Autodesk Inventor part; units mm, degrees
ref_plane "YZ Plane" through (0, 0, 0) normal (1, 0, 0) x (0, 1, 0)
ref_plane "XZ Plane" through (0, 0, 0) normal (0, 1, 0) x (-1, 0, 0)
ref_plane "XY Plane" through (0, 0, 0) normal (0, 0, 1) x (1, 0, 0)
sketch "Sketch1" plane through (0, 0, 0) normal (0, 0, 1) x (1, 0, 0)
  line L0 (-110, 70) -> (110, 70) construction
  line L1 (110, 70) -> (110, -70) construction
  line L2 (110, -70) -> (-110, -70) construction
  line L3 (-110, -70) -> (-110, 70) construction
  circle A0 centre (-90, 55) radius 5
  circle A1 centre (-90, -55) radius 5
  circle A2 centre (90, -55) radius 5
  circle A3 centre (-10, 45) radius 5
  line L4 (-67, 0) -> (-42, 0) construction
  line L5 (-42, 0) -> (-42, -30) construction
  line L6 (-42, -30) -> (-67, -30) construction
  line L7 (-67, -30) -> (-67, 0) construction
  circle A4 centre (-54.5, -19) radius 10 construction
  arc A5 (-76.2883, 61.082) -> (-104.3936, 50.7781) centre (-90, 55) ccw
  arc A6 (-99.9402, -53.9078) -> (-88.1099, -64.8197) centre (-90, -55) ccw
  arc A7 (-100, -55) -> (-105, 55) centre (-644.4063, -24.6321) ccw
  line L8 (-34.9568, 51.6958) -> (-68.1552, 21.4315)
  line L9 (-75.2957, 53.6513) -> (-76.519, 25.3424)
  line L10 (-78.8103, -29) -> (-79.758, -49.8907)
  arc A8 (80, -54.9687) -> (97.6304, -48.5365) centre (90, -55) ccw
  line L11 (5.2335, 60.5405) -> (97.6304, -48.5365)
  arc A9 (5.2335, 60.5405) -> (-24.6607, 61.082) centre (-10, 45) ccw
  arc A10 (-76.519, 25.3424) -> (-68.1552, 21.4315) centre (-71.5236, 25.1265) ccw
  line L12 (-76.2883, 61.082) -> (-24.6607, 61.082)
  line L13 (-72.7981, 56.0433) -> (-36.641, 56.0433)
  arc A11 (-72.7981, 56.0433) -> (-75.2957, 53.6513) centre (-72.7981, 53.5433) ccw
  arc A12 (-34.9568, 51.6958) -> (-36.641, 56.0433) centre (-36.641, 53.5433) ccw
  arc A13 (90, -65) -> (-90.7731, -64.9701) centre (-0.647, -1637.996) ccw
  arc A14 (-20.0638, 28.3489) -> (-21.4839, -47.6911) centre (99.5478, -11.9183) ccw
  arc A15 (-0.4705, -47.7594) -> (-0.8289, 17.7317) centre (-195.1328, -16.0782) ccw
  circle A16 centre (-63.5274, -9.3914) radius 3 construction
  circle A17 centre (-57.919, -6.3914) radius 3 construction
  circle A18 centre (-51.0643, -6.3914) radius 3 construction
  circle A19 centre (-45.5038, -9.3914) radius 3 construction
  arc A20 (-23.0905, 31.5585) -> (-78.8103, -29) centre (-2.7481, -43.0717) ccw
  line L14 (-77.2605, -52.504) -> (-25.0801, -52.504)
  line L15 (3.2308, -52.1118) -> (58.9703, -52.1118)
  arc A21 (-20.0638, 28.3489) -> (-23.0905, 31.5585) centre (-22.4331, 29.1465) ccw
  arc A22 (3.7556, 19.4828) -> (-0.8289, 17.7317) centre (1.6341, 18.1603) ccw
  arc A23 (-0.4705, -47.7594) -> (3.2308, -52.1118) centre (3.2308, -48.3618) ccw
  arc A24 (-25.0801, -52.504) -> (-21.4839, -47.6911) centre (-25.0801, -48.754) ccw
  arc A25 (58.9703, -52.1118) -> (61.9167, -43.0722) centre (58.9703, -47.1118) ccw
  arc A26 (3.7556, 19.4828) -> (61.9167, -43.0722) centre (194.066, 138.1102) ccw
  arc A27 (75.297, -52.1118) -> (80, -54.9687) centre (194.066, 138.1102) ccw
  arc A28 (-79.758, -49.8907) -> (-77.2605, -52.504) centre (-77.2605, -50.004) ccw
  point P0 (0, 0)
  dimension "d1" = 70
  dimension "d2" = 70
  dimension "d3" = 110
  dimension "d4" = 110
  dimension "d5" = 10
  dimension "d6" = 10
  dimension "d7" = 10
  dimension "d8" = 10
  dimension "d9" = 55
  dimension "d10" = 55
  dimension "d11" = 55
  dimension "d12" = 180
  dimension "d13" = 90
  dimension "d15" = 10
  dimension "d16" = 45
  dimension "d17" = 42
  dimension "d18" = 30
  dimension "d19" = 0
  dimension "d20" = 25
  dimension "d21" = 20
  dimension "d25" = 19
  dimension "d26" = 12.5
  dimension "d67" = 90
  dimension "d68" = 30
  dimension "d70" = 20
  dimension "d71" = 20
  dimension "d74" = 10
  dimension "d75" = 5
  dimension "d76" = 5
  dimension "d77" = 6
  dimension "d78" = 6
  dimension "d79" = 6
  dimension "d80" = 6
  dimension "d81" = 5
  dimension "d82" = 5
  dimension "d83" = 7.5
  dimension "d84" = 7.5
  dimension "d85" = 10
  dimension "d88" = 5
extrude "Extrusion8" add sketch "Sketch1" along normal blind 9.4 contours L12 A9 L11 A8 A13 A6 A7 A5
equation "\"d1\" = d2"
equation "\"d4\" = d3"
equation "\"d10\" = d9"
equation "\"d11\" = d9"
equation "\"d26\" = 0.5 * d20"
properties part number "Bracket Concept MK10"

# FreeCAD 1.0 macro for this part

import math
import FreeCAD as App
import Part
import Sketcher
Q = App.Units.Quantity

doc = App.newDocument("Part")
params = doc.addObject("Spreadsheet::Sheet", "Params")
for row, (alias, value) in enumerate([
    ("sketch1_diameter", "10 mm"),
    ("sketch1_radius", "15 mm"),
    ("sketch1_radius2", "10 mm"),
    ("sketch1_radius3", "2.5 mm"),
    ("sketch1_radius4", "3.75 mm"),
    ("pad1_length", "9.4 mm"),
], start=1):
    params.set(f"A{row}", alias)
    params.set(f"B{row}", "=" + value)
    params.setAlias(f"B{row}", alias)

body = doc.addObject("PartDesign::Body", "Body")

# Sketch on XY plane
sketch1 = doc.addObject("Sketcher::SketchObject", "Sketch")
body.addObject(sketch1)
sketch1.AttachmentSupport = (doc.XY_Plane, [""])
sketch1.MapMode = "FlatFace"
sketch1.addGeometry([
    Part.LineSegment(App.Vector(-24.7, 61.1, 0), App.Vector(-76.3, 61.1, 0)),  # 0
    Part.ArcOfCircle(Part.Circle(App.Vector(-90, 55, 0), App.Vector(0, 0, 1), 15), math.radians(24), math.radians(180)),  # 1
    Part.ArcOfCircle(Part.Circle(App.Vector(-644.4, -24.6, 0), App.Vector(0, 0, 1), 545.3), math.radians(-3.19), math.radians(8.4)),  # 2
    Part.ArcOfCircle(Part.Circle(App.Vector(-90, -55, 0), App.Vector(0, 0, 1), 10), math.radians(180), math.radians(266)),  # 3
    Part.ArcOfCircle(Part.Circle(App.Vector(-0.6, -1638, 0), App.Vector(0, 0, 1), 1575.6), math.radians(86.7), math.radians(93.28)),  # 4
    Part.ArcOfCircle(Part.Circle(App.Vector(90, -55, 0), App.Vector(0, 0, 1), 10), math.radians(-90), math.radians(40)),  # 5
    Part.LineSegment(App.Vector(97.6, -48.5, 0), App.Vector(5.2, 60.5, 0)),  # 6
    Part.ArcOfCircle(Part.Circle(App.Vector(-10, 45, 0), App.Vector(0, 0, 1), 21.8), math.radians(46), math.radians(132)),  # 7
    Part.Circle(App.Vector(-90, -55, 0), App.Vector(0, 0, 1), 5),  # 8
    Part.LineSegment(App.Vector(-79.8, -49.9, 0), App.Vector(-78.8, -29, 0)),  # 9
    Part.ArcOfCircle(Part.Circle(App.Vector(-2.7, -43.1, 0), App.Vector(0, 0, 1), 77.4), math.radians(105), math.radians(170)),  # 10
    Part.ArcOfCircle(Part.Circle(App.Vector(-22.4, 29.1, 0), App.Vector(0, 0, 1), 2.5), math.radians(-19), math.radians(105)),  # 11
    Part.ArcOfCircle(Part.Circle(App.Vector(99.5, -11.9, 0), App.Vector(0, 0, 1), 126.2), math.radians(161), math.radians(196)),  # 12
    Part.ArcOfCircle(Part.Circle(App.Vector(-25.1, -48.8, 0), App.Vector(0, 0, 1), 3.8), math.radians(-90), math.radians(16)),  # 13
    Part.LineSegment(App.Vector(-25.1, -52.5, 0), App.Vector(-77.3, -52.5, 0)),  # 14
    Part.ArcOfCircle(Part.Circle(App.Vector(-77.3, -50, 0), App.Vector(0, 0, 1), 2.5), math.radians(177), math.radians(270)),  # 15
    Part.Circle(App.Vector(90, -55, 0), App.Vector(0, 0, 1), 5),  # 16
    Part.ArcOfCircle(Part.Circle(App.Vector(3.2, -48.4, 0), App.Vector(0, 0, 1), 3.8), math.radians(171), math.radians(270)),  # 17
    Part.ArcOfCircle(Part.Circle(App.Vector(-195.1, -16.1, 0), App.Vector(0, 0, 1), 197.2), math.radians(-9.24), math.radians(9.87)),  # 18
    Part.ArcOfCircle(Part.Circle(App.Vector(1.6, 18.2, 0), App.Vector(0, 0, 1), 2.5), math.radians(32), math.radians(190)),  # 19
    Part.ArcOfCircle(Part.Circle(App.Vector(194.1, 138.1, 0), App.Vector(0, 0, 1), 224.3), math.radians(-148), math.radians(-126)),  # 20
    Part.ArcOfCircle(Part.Circle(App.Vector(59, -47.1, 0), App.Vector(0, 0, 1), 5), math.radians(-90), math.radians(54)),  # 21
    Part.LineSegment(App.Vector(59, -52.1, 0), App.Vector(3.2, -52.1, 0)),  # 22
    Part.ArcOfCircle(Part.Circle(App.Vector(-36.6, 53.5, 0), App.Vector(0, 0, 1), 2.5), math.radians(-48), math.radians(90)),  # 23
    Part.LineSegment(App.Vector(-35, 51.7, 0), App.Vector(-68.2, 21.4, 0)),  # 24
    Part.ArcOfCircle(Part.Circle(App.Vector(-71.5, 25.1, 0), App.Vector(0, 0, 1), 5), math.radians(178), math.radians(312)),  # 25
    Part.LineSegment(App.Vector(-76.5, 25.3, 0), App.Vector(-75.3, 53.7, 0)),  # 26
    Part.ArcOfCircle(Part.Circle(App.Vector(-72.8, 53.5, 0), App.Vector(0, 0, 1), 2.5), math.radians(90), math.radians(178)),  # 27
    Part.LineSegment(App.Vector(-72.8, 56, 0), App.Vector(-36.6, 56, 0)),  # 28
    Part.Circle(App.Vector(-90, 55, 0), App.Vector(0, 0, 1), 5),  # 29
    Part.Circle(App.Vector(-10, 45, 0), App.Vector(0, 0, 1), 5),  # 30
], False)
sketch1.addConstraint([
    Sketcher.Constraint("Coincident", 0, 2, 1, 1),
    Sketcher.Constraint("Coincident", 1, 2, 2, 2),
    Sketcher.Constraint("Coincident", 2, 1, 3, 1),
    Sketcher.Constraint("Coincident", 3, 2, 4, 2),
    Sketcher.Constraint("Coincident", 4, 1, 5, 1),
    Sketcher.Constraint("Tangent", 5, 2, 6, 1),
    Sketcher.Constraint("Coincident", 6, 2, 7, 1),
    Sketcher.Constraint("Coincident", 7, 2, 0, 1),
    Sketcher.Constraint("Coincident", 9, 2, 10, 2),
    Sketcher.Constraint("Tangent", 10, 1, 11, 2),
    Sketcher.Constraint("Tangent", 11, 1, 12, 1),
    Sketcher.Constraint("Tangent", 12, 2, 13, 2),
    Sketcher.Constraint("Tangent", 13, 1, 14, 1),
    Sketcher.Constraint("Tangent", 14, 2, 15, 2),
    Sketcher.Constraint("Tangent", 15, 1, 9, 1),
    Sketcher.Constraint("Tangent", 17, 1, 18, 1),
    Sketcher.Constraint("Tangent", 18, 2, 19, 2),
    Sketcher.Constraint("Tangent", 19, 1, 20, 1),
    Sketcher.Constraint("Tangent", 20, 2, 21, 2),
    Sketcher.Constraint("Tangent", 21, 1, 22, 1),
    Sketcher.Constraint("Tangent", 22, 2, 17, 2),
    Sketcher.Constraint("Tangent", 23, 1, 24, 1),
    Sketcher.Constraint("Tangent", 24, 2, 25, 2),
    Sketcher.Constraint("Tangent", 25, 1, 26, 1),
    Sketcher.Constraint("Tangent", 26, 2, 27, 2),
    Sketcher.Constraint("Tangent", 27, 1, 28, 1),
    Sketcher.Constraint("Tangent", 28, 2, 23, 2),
    Sketcher.Constraint("Horizontal", 0),
    Sketcher.Constraint("Horizontal", 14),
    Sketcher.Constraint("Horizontal", 22),
    Sketcher.Constraint("Horizontal", 28),
    Sketcher.Constraint("Coincident", 8, 3, 3, 3),
    Sketcher.Constraint("Coincident", 16, 3, 5, 3),
    Sketcher.Constraint("Coincident", 29, 3, 1, 3),
    Sketcher.Constraint("Coincident", 30, 3, 7, 3),
    Sketcher.Constraint("Equal", 3, 5),
    Sketcher.Constraint("Equal", 11, 15),
    Sketcher.Constraint("Equal", 8, 16),
    Sketcher.Constraint("Equal", 13, 17),
    Sketcher.Constraint("Equal", 15, 19),
    Sketcher.Constraint("Equal", 16, 21),
    Sketcher.Constraint("Equal", 19, 23),
    Sketcher.Constraint("Equal", 21, 25),
    Sketcher.Constraint("Equal", 23, 27),
    Sketcher.Constraint("Equal", 25, 29),
    Sketcher.Constraint("Equal", 29, 30),
    Sketcher.Constraint("Symmetric", 1, 3, 5, 3, -1, 1),
    Sketcher.Constraint("Symmetric", 3, 3, 5, 3, -2),
    Sketcher.Constraint("Horizontal", 29, 3, 1, 2),
    Sketcher.Constraint("Horizontal", 16, 3, 2, 1),
    Sketcher.Constraint("Vertical", 16, 3, 4, 1),
    Sketcher.Constraint("Diameter", 8, Q("10 mm")),
    Sketcher.Constraint("Radius", 1, Q("15 mm")),
    Sketcher.Constraint("Radius", 3, Q("10 mm")),
    Sketcher.Constraint("Radius", 11, Q("2.5 mm")),
    Sketcher.Constraint("Radius", 13, Q("3.75 mm")),
    Sketcher.Constraint("DistanceX", 1, 3, -1, 1, Q("90 mm")),
    Sketcher.Constraint("DistanceY", -1, 1, 1, 3, Q("55 mm")),
    Sketcher.Constraint("DistanceX", 7, 3, -1, 1, Q("10 mm")),
    Sketcher.Constraint("DistanceY", -1, 1, 7, 3, Q("45 mm")),
    Sketcher.Constraint("DistanceY", 9, 2, -1, 1, Q("29 mm")),
    Sketcher.Constraint("Radius", 10, Q("77.353 mm")),
    Sketcher.Constraint("Radius", 2, Q("545.2526 mm")),
    Sketcher.Constraint("Radius", 4, Q("1575.5962 mm")),
    Sketcher.Constraint("Radius", 7, Q("21.7616 mm")),
    Sketcher.Constraint("Radius", 12, Q("126.2077 mm")),
    Sketcher.Constraint("Radius", 18, Q("197.2235 mm")),
    Sketcher.Constraint("Radius", 20, Q("224.2554 mm")),
    Sketcher.Constraint("DistanceX", 28, 1, 28, 2, Q("36.157 mm")),
    Sketcher.Constraint("DistanceX", 13, 3, -1, 1, Q("25.08 mm")),
    Sketcher.Constraint("DistanceY", 3, 2, -1, 1, Q("64.97 mm")),
    Sketcher.Constraint("DistanceY", 17, 3, 10, 3, Q("5.29 mm")),
    Sketcher.Constraint("DistanceY", 19, 3, 20, 3, Q("119.95 mm")),
    Sketcher.Constraint("DistanceY", 25, 3, 11, 3, Q("4.02 mm")),
    Sketcher.Constraint("Distance", 6, Q("142.951 mm")),
    Sketcher.Constraint("DistanceX", 0, 2, 0, 1, Q("51.6276 mm")),
    Sketcher.Constraint("DistanceX", 14, 2, 14, 1, Q("52.1804 mm")),
    Sketcher.Constraint("DistanceX", 22, 2, 22, 1, Q("55.7395 mm")),
    Sketcher.Constraint("DistanceX", 10, 3, -1, 1, Q("2.748 mm")),
    Sketcher.Constraint("DistanceX", 11, 3, -1, 1, Q("22.433 mm")),
    Sketcher.Constraint("DistanceY", 13, 3, -1, 1, Q("48.754 mm")),
    Sketcher.Constraint("DistanceX", -1, 1, 19, 3, Q("1.634 mm")),
    Sketcher.Constraint("DistanceX", 23, 3, -1, 1, Q("36.641 mm")),
    Sketcher.Constraint("DistanceY", -1, 1, 11, 1, Q("28.349 mm")),
    Sketcher.Constraint("DistanceX", 25, 1, -1, 1, Q("76.519 mm")),
    Sketcher.Constraint("DistanceX", 10, 3, 17, 3, Q("5.979 mm")),
    Sketcher.Constraint("DistanceY", 19, 3, 23, 3, Q("35.383 mm")),
])
sketch1.setExpression("Constraints[51]", "Params.sketch1_diameter")
sketch1.setExpression("Constraints[52]", "Params.sketch1_radius")
sketch1.setExpression("Constraints[53]", "Params.sketch1_radius2")
sketch1.setExpression("Constraints[54]", "Params.sketch1_radius3")
sketch1.setExpression("Constraints[55]", "Params.sketch1_radius4")
pad1 = doc.addObject("PartDesign::Pad", "Pad")
body.addObject(pad1)
pad1.Profile = sketch1
pad1.setExpression("Length", "Params.pad1_length")

doc.recompute()
